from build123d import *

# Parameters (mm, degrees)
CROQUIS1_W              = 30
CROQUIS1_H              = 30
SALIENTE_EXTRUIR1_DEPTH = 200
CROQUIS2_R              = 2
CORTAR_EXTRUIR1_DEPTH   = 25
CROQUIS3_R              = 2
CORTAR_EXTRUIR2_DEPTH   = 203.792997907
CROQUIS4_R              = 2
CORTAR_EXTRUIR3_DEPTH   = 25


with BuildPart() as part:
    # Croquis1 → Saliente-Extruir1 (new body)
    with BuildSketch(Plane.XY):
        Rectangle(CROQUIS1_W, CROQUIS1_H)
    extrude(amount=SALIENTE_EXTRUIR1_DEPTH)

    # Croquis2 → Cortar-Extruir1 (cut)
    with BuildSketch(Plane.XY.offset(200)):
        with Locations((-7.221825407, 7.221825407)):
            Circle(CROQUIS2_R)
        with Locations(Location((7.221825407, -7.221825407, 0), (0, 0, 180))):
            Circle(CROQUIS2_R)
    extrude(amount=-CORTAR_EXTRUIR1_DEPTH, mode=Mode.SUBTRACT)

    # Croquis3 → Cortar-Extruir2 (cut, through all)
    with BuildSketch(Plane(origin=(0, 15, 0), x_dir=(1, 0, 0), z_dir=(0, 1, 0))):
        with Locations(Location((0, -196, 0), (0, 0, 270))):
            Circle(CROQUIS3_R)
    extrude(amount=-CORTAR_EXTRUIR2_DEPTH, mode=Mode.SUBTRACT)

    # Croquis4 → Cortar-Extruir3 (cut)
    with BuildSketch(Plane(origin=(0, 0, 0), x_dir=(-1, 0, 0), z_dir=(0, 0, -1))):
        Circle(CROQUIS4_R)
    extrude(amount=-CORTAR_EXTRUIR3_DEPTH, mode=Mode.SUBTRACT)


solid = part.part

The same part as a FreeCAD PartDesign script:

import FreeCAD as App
import Part
import Sketcher
Q = App.Units.Quantity

doc = App.newDocument("Part")
body = doc.addObject("PartDesign::Body", "Body")

sketch1 = body.newObject("Sketcher::SketchObject", "Sketch")
sketch1.AttachmentSupport = (doc.getObject("XY_Plane"), [""])
sketch1.MapMode = "FlatFace"
sketch1.addGeometry(Part.LineSegment(App.Vector(-15, 15, 0), App.Vector(-15, -15, 0)), False)
sketch1.addGeometry(Part.LineSegment(App.Vector(-15, -15, 0), App.Vector(15, -15, 0)), False)
sketch1.addGeometry(Part.LineSegment(App.Vector(15, -15, 0), App.Vector(15, 15, 0)), False)
sketch1.addGeometry(Part.LineSegment(App.Vector(15, 15, 0), App.Vector(-15, 15, 0)), False)
sketch1.addConstraint(Sketcher.Constraint("Coincident", 0, 2, 1, 1))
sketch1.addConstraint(Sketcher.Constraint("Coincident", 1, 2, 2, 1))
sketch1.addConstraint(Sketcher.Constraint("Coincident", 2, 2, 3, 1))
sketch1.addConstraint(Sketcher.Constraint("Coincident", 3, 2, 0, 1))
sketch1.addConstraint(Sketcher.Constraint("Vertical", 0))
sketch1.addConstraint(Sketcher.Constraint("Horizontal", 1))
sketch1.addConstraint(Sketcher.Constraint("Vertical", 2))
sketch1.addConstraint(Sketcher.Constraint("Horizontal", 3))
sketch1.addConstraint(Sketcher.Constraint("Symmetric", 0, 2, 2, 2, -1, 1))
sketch1.addConstraint(Sketcher.Constraint("Equal", 3, 0))
sketch1.addConstraint(Sketcher.Constraint("DistanceX", 1, 1, 1, 2, Q("30 mm")))
pad1 = body.newObject("PartDesign::Pad", "Pad")
pad1.Profile = sketch1
pad1.Length = 200

sketch2 = body.newObject("Sketcher::SketchObject", "Sketch001")
sketch2.AttachmentSupport = (doc.getObject("XY_Plane"), [""])
sketch2.MapMode = "FlatFace"
sketch2.AttachmentOffset = App.Placement(App.Vector(0, 0, 200), App.Rotation())
sketch2.addGeometry(Part.Circle(App.Vector(-7.221825, 7.221825, 0), App.Vector(0, 0, 1), 2), False)
sketch2.addGeometry(Part.Circle(App.Vector(7.221825, -7.221825, 0), App.Vector(0, 0, 1), 2), False)
sketch2.addConstraint(Sketcher.Constraint("Equal", 0, 1))
sketch2.addConstraint(Sketcher.Constraint("Symmetric", 0, 3, 1, 3, -1, 1))
sketch2.addConstraint(Sketcher.Constraint("Diameter", 0, Q("4 mm")))
sketch2.addConstraint(Sketcher.Constraint("DistanceX", 0, 3, 1, 3, Q("14.443651 mm")))
sketch2.addConstraint(Sketcher.Constraint("DistanceY", 1, 3, 0, 3, Q("14.443651 mm")))
pocket1 = body.newObject("PartDesign::Pocket", "Pocket")
pocket1.Profile = sketch2
pocket1.Length = 25

sketch3 = body.newObject("Sketcher::SketchObject", "Sketch002")
sketch3.AttachmentSupport = (doc.getObject("XZ_Plane"), [""])
sketch3.MapMode = "FlatFace"
sketch3.AttachmentOffset = App.Placement(App.Vector(0, 0, -15), App.Rotation())
sketch3.addGeometry(Part.Circle(App.Vector(0, 196, 0), App.Vector(0, 0, 1), 2), False)
sketch3.addConstraint(Sketcher.Constraint("PointOnObject", 0, 3, -2))
sketch3.addConstraint(Sketcher.Constraint("Diameter", 0, Q("4 mm")))
sketch3.addConstraint(Sketcher.Constraint("DistanceY", -1, 1, 0, 3, Q("196 mm")))
pocket2 = body.newObject("PartDesign::Pocket", "Pocket001")
pocket2.Profile = sketch3
pocket2.Type = "ThroughAll"
pocket2.Reversed = True

sketch4 = body.newObject("Sketcher::SketchObject", "Sketch003")
sketch4.AttachmentSupport = (doc.getObject("XY_Plane"), [""])
sketch4.MapMode = "FlatFace"
sketch4.addGeometry(Part.Circle(App.Vector(0, 0, 0), App.Vector(0, 0, 1), 2), False)
sketch4.addConstraint(Sketcher.Constraint("Coincident", 0, 3, -1, 1))
sketch4.addConstraint(Sketcher.Constraint("Diameter", 0, Q("4 mm")))
pocket3 = body.newObject("PartDesign::Pocket", "Pocket002")
pocket3.Profile = sketch4
pocket3.Length = 25
pocket3.Reversed = True

doc.recompute()
